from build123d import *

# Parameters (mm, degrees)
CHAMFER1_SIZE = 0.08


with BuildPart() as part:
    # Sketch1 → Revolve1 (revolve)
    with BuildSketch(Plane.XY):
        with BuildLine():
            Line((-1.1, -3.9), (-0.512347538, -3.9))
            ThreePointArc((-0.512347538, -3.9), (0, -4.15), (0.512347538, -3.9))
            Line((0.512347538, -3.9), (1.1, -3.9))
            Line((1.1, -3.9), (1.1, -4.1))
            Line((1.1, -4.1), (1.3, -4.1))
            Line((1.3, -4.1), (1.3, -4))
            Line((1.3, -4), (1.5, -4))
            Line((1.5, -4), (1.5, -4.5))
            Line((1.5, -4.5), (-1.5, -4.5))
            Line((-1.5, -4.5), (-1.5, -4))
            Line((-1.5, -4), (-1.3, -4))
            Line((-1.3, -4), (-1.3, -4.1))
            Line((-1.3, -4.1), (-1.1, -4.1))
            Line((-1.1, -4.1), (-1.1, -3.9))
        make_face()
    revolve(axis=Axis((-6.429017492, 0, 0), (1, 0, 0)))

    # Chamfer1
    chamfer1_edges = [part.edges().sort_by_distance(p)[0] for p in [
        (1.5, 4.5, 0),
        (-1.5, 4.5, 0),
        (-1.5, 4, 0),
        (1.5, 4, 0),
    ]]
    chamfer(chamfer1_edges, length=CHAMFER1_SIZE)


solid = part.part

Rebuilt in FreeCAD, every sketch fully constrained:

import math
import FreeCAD as App
import Part
import Sketcher
Q = App.Units.Quantity


def edges_at(feature, points):
    """Names of the edges that pass closest to the given points."""
    edges = feature.Shape.Edges
    near = lambda p: min(range(len(edges)), key=lambda i: edges[i].distToShape(Part.Vertex(*p))[0])
    return sorted({f"Edge{near(p) + 1}" for p in points})

doc = App.newDocument("Part")
body = doc.addObject("PartDesign::Body", "Body")

sketch1 = body.newObject("Sketcher::SketchObject", "Sketch")
sketch1.AttachmentSupport = (doc.getObject("XY_Plane"), [""])
sketch1.MapMode = "FlatFace"
sketch1.addGeometry(Part.LineSegment(App.Vector(-0.51, -3.9, 0), App.Vector(-1.1, -3.9, 0)), False)
sketch1.addGeometry(Part.LineSegment(App.Vector(-1.1, -3.9, 0), App.Vector(-1.1, -4.1, 0)), False)
sketch1.addGeometry(Part.LineSegment(App.Vector(-1.1, -4.1, 0), App.Vector(-1.3, -4.1, 0)), False)
sketch1.addGeometry(Part.LineSegment(App.Vector(-1.3, -4.1, 0), App.Vector(-1.3, -4, 0)), False)
sketch1.addGeometry(Part.LineSegment(App.Vector(-1.3, -4, 0), App.Vector(-1.5, -4, 0)), False)
sketch1.addGeometry(Part.LineSegment(App.Vector(-1.5, -4, 0), App.Vector(-1.5, -4.5, 0)), False)
sketch1.addGeometry(Part.LineSegment(App.Vector(-1.5, -4.5, 0), App.Vector(1.5, -4.5, 0)), False)
sketch1.addGeometry(Part.LineSegment(App.Vector(1.5, -4.5, 0), App.Vector(1.5, -4, 0)), False)
sketch1.addGeometry(Part.LineSegment(App.Vector(1.5, -4, 0), App.Vector(1.3, -4, 0)), False)
sketch1.addGeometry(Part.LineSegment(App.Vector(1.3, -4, 0), App.Vector(1.3, -4.1, 0)), False)
sketch1.addGeometry(Part.LineSegment(App.Vector(1.3, -4.1, 0), App.Vector(1.1, -4.1, 0)), False)
sketch1.addGeometry(Part.LineSegment(App.Vector(1.1, -4.1, 0), App.Vector(1.1, -3.9, 0)), False)
sketch1.addGeometry(Part.LineSegment(App.Vector(1.1, -3.9, 0), App.Vector(0.51, -3.9, 0)), False)
sketch1.addGeometry(Part.ArcOfCircle(Part.Circle(App.Vector(0, -3.5, 0), App.Vector(0, 0, 1), 0.65), math.radians(-142), math.radians(-38)), False)
sketch1.addConstraint(Sketcher.Constraint("Coincident", 0, 2, 1, 1))
sketch1.addConstraint(Sketcher.Constraint("Coincident", 1, 2, 2, 1))
sketch1.addConstraint(Sketcher.Constraint("Coincident", 2, 2, 3, 1))
sketch1.addConstraint(Sketcher.Constraint("Coincident", 3, 2, 4, 1))
sketch1.addConstraint(Sketcher.Constraint("Coincident", 4, 2, 5, 1))
sketch1.addConstraint(Sketcher.Constraint("Coincident", 5, 2, 6, 1))
sketch1.addConstraint(Sketcher.Constraint("Coincident", 6, 2, 7, 1))
sketch1.addConstraint(Sketcher.Constraint("Coincident", 7, 2, 8, 1))
sketch1.addConstraint(Sketcher.Constraint("Coincident", 8, 2, 9, 1))
sketch1.addConstraint(Sketcher.Constraint("Coincident", 9, 2, 10, 1))
sketch1.addConstraint(Sketcher.Constraint("Coincident", 10, 2, 11, 1))
sketch1.addConstraint(Sketcher.Constraint("Coincident", 11, 2, 12, 1))
sketch1.addConstraint(Sketcher.Constraint("Coincident", 12, 2, 13, 2))
sketch1.addConstraint(Sketcher.Constraint("Coincident", 13, 1, 0, 1))
sketch1.addConstraint(Sketcher.Constraint("Horizontal", 0))
sketch1.addConstraint(Sketcher.Constraint("Vertical", 1))
sketch1.addConstraint(Sketcher.Constraint("Horizontal", 2))
sketch1.addConstraint(Sketcher.Constraint("Vertical", 3))
sketch1.addConstraint(Sketcher.Constraint("Horizontal", 4))
sketch1.addConstraint(Sketcher.Constraint("Vertical", 5))
sketch1.addConstraint(Sketcher.Constraint("Horizontal", 6))
sketch1.addConstraint(Sketcher.Constraint("Vertical", 7))
sketch1.addConstraint(Sketcher.Constraint("Horizontal", 8))
sketch1.addConstraint(Sketcher.Constraint("Vertical", 9))
sketch1.addConstraint(Sketcher.Constraint("Horizontal", 10))
sketch1.addConstraint(Sketcher.Constraint("Vertical", 11))
sketch1.addConstraint(Sketcher.Constraint("Horizontal", 12))
sketch1.addConstraint(Sketcher.Constraint("Symmetric", 4, 2, 7, 2, -2))
sketch1.addConstraint(Sketcher.Constraint("Symmetric", 2, 2, 9, 2, -2))
sketch1.addConstraint(Sketcher.Constraint("Symmetric", 0, 2, 11, 2, -2))
sketch1.addConstraint(Sketcher.Constraint("PointOnObject", 13, 3, -2))
sketch1.addConstraint(Sketcher.Constraint("Equal", 2, 4))
sketch1.addConstraint(Sketcher.Constraint("Equal", 10, 1))
sketch1.addConstraint(Sketcher.Constraint("DistanceX", 6, 1, 6, 2, Q("3 mm")))
sketch1.addConstraint(Sketcher.Constraint("Radius", 13, Q("0.65 mm")))
sketch1.addConstraint(Sketcher.Constraint("DistanceX", 2, 2, 2, 1, Q("0.2 mm")))
sketch1.addConstraint(Sketcher.Constraint("DistanceY", 3, 1, 3, 2, Q("0.1 mm")))
sketch1.addConstraint(Sketcher.Constraint("DistanceY", 5, 2, 5, 1, Q("0.5 mm")))
sketch1.addConstraint(Sketcher.Constraint("DistanceY", 3, 2, -1, 1, Q("4 mm")))
sketch1.addConstraint(Sketcher.Constraint("DistanceY", 6, 2, 13, 3, Q("1 mm")))
revolution = body.newObject("PartDesign::Revolution", "Revolution")
revolution.Profile = sketch1
revolution.ReferenceAxis = (sketch1, ["H_Axis"])
revolution.Angle = 360
doc.recompute()

chamfer = body.newObject("PartDesign::Chamfer", "Chamfer")
chamfer.Base = (revolution, edges_at(revolution, [
    (1.5, 4.5, 0),
    (-1.5, 4.5, 0),
    (-1.5, 4, 0),
    (1.5, 4, 0),
]))
chamfer.Size = 0.08

doc.recompute()
